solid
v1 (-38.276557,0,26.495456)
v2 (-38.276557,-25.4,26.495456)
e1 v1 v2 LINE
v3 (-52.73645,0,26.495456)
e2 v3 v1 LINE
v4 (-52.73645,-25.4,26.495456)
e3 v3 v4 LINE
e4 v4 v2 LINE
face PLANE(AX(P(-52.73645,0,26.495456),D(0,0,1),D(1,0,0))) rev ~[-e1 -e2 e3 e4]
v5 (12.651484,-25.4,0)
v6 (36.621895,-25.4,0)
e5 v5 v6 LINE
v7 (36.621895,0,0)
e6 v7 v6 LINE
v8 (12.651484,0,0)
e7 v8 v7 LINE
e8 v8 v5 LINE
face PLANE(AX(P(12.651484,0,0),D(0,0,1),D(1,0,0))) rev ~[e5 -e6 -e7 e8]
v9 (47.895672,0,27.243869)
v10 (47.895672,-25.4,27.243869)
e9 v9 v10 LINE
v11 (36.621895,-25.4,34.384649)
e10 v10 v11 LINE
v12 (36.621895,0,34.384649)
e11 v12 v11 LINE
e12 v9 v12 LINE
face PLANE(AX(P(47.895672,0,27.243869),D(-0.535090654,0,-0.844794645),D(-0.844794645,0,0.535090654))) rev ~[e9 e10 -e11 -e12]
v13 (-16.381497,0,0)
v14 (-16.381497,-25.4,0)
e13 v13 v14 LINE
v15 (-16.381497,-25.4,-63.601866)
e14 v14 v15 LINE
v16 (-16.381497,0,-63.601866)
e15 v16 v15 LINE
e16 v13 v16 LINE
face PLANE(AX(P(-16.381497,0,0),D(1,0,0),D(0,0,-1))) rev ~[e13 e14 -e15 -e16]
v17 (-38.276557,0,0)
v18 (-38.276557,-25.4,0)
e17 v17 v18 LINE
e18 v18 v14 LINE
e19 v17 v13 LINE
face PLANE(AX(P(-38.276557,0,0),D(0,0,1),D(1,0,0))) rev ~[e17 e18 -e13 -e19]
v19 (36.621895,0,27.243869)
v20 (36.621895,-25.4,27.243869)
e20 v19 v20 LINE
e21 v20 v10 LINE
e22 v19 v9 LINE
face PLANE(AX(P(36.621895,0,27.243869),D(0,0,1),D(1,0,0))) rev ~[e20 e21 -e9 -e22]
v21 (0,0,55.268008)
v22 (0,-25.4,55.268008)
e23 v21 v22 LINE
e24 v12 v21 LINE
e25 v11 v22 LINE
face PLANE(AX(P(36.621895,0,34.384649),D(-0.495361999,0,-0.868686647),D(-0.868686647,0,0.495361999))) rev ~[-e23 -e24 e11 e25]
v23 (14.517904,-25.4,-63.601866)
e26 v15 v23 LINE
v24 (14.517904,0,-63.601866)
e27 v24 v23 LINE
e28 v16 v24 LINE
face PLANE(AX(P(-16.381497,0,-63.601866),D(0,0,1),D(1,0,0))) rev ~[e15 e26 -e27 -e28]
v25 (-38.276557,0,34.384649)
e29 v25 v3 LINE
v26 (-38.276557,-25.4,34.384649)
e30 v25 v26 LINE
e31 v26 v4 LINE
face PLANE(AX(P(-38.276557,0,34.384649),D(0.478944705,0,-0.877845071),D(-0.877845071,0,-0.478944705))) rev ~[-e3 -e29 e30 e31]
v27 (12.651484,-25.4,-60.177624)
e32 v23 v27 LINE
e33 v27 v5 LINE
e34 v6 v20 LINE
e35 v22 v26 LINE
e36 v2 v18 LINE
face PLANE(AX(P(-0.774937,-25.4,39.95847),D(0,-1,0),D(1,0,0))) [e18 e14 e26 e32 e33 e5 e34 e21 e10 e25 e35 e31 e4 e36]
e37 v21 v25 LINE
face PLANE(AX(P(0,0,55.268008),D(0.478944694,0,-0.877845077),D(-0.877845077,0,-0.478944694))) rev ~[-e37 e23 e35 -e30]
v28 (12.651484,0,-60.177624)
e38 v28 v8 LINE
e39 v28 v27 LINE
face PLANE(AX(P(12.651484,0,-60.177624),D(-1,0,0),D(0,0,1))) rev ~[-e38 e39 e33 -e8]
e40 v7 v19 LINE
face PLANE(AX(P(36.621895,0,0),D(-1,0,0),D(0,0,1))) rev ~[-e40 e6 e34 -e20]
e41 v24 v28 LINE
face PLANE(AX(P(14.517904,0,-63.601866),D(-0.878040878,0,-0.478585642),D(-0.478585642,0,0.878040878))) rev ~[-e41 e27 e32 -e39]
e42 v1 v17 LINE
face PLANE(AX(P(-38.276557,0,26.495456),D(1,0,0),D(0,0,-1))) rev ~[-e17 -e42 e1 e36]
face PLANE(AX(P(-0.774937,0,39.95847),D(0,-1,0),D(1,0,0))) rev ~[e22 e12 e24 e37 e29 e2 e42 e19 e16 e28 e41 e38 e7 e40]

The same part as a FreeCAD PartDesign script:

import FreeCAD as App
import Part
import Sketcher

V = App.Vector


def add_polygon(sketch, points):
    """Adds a closed chain of lines whose ends are joined by coincident constraints."""
    first, n = sketch.GeometryCount, len(points)
    for a, b in zip(points, points[1:] + points[:1]):
        sketch.addGeometry(Part.LineSegment(App.Vector(*a, 0), App.Vector(*b, 0)), False)
    for i in range(n):
        sketch.addConstraint(Sketcher.Constraint("Coincident", first + i, 2, first + (i + 1) % n, 1))

doc = App.newDocument("Part")
params = doc.addObject("Spreadsheet::Sheet", "Params")
for row, (alias, value) in enumerate([
    ("pad1_length", "1 in"),
], start=1):
    params.set(f"A{row}", alias)
    params.set(f"B{row}", "=" + value)
    params.setAlias(f"B{row}", alias)

body = doc.addObject("PartDesign::Body", "Body")

# Sketch on XZ plane
sketch1 = body.newObject("Sketcher::SketchObject", "Sketch")
sketch1.AttachmentSupport = (doc.getObject("XZ_Plane"), [""])
sketch1.MapMode = "FlatFace"
add_polygon(sketch1, [(36.6, 34.4), (0, 55.3), (-38.3, 34.4), (-52.7, 26.5), (-38.3, 26.5), (-38.3, 0), (-16.4, 0), (-16.4, -63.6), (14.5, -63.6), (12.7, -60.2), (12.7, 0), (36.6, 0), (36.6, 27.2), (47.9, 27.2)])  # lines 0-13
sketch1.addConstraint([
    Sketcher.Constraint("Horizontal", 3),
    Sketcher.Constraint("Vertical", 4),
    Sketcher.Constraint("Horizontal", 5),
    Sketcher.Constraint("Vertical", 6),
    Sketcher.Constraint("Horizontal", 7),
    Sketcher.Constraint("Vertical", 9),
    Sketcher.Constraint("Horizontal", 10),
    Sketcher.Constraint("Vertical", 11),
    Sketcher.Constraint("Horizontal", 12),
    Sketcher.Constraint("PointOnObject", 0, 2, -2),
    Sketcher.Constraint("PointOnObject", 4, 2, -1),
    Sketcher.Constraint("PointOnObject", 9, 2, -1),
    Sketcher.Constraint("Parallel", 1, 2),
    Sketcher.Constraint("Horizontal", 1, 2, 13, 2),
    Sketcher.Constraint("Vertical", 1, 2, 3, 2),
    Sketcher.Constraint("Vertical", 11, 2, 13, 2),
    Sketcher.Constraint("DistanceX", 7, 1, 7, 2, 30.899401),
    Sketcher.Constraint("DistanceX", 5, 1, 5, 2, 21.89506),
    Sketcher.Constraint("DistanceX", 10, 1, 10, 2, 23.970411),
    Sketcher.Constraint("DistanceY", 11, 1, 11, 2, 27.243869),
    Sketcher.Constraint("Distance", 1, 43.602861),
    Sketcher.Constraint("Distance", 13, 13.344991),
    Sketcher.Constraint("DistanceX", 3, 1, 3, 2, 14.459893),
    Sketcher.Constraint("DistanceX", 12, 1, 12, 2, 11.273777),
    Sketcher.Constraint("DistanceY", 4, 2, 4, 1, 26.495456),
    Sketcher.Constraint("DistanceY", 6, 2, 6, 1, 63.601866),
    Sketcher.Constraint("DistanceY", 9, 1, 9, 2, 60.177624),
    Sketcher.Constraint("DistanceX", -1, 1, 12, 2, 47.895672),
])
pad1 = body.newObject("PartDesign::Pad", "Pad")
pad1.Profile = sketch1
pad1.setExpression("Length", "Params.pad1_length")

doc.recompute()
